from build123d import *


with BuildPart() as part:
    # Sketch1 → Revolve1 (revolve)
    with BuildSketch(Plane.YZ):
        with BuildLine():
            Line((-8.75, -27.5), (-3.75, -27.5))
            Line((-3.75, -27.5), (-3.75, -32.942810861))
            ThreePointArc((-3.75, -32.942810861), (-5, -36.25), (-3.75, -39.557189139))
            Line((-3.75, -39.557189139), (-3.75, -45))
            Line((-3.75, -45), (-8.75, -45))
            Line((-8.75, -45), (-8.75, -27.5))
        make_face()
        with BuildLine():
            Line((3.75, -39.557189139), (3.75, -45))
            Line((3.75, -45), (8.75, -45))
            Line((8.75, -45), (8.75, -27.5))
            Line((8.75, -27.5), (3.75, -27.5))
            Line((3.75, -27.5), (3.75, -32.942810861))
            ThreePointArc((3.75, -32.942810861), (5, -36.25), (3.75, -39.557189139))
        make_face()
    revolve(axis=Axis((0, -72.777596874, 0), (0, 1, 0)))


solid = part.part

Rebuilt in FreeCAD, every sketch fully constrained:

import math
import FreeCAD as App
import Part
import Sketcher

V = App.Vector
Q = App.Units.Quantity

doc = App.newDocument("Part")
body = doc.addObject("PartDesign::Body", "Body")
body.AllowCompound = True

sketch1 = body.newObject("Sketcher::SketchObject", "Sketch")
sketch1.AttachmentSupport = (doc.getObject("YZ_Plane"), [""])
sketch1.MapMode = "FlatFace"
sketch1.addGeometry(Part.LineSegment(V(-4, -28, 0), V(-9, -28, 0)), False)
sketch1.addGeometry(Part.LineSegment(V(-9, -28, 0), V(-9, -45, 0)), False)
sketch1.addGeometry(Part.LineSegment(V(-9, -45, 0), V(-4, -45, 0)), False)
sketch1.addGeometry(Part.LineSegment(V(-4, -45, 0), V(-4, -40, 0)), False)
sketch1.addGeometry(Part.ArcOfCircle(Part.Circle(V(0, -36, 0), V(0, 0, 1), 5), math.radians(139), math.radians(221)), False)
sketch1.addGeometry(Part.LineSegment(V(-4, -33, 0), V(-4, -28, 0)), False)
sketch1.addGeometry(Part.LineSegment(V(4, -40, 0), V(4, -45, 0)), False)
sketch1.addGeometry(Part.LineSegment(V(4, -45, 0), V(9, -45, 0)), False)
sketch1.addGeometry(Part.LineSegment(V(9, -45, 0), V(9, -28, 0)), False)
sketch1.addGeometry(Part.LineSegment(V(9, -28, 0), V(4, -28, 0)), False)
sketch1.addGeometry(Part.LineSegment(V(4, -28, 0), V(4, -33, 0)), False)
sketch1.addGeometry(Part.ArcOfCircle(Part.Circle(V(0, -36, 0), V(0, 0, 1), 5), math.radians(-41), math.radians(41)), False)
sketch1.addConstraint(Sketcher.Constraint("Coincident", 0, 2, 1, 1))
sketch1.addConstraint(Sketcher.Constraint("Coincident", 1, 2, 2, 1))
sketch1.addConstraint(Sketcher.Constraint("Coincident", 2, 2, 3, 1))
sketch1.addConstraint(Sketcher.Constraint("Coincident", 3, 2, 4, 2))
sketch1.addConstraint(Sketcher.Constraint("Coincident", 4, 1, 5, 1))
sketch1.addConstraint(Sketcher.Constraint("Coincident", 5, 2, 0, 1))
sketch1.addConstraint(Sketcher.Constraint("Coincident", 6, 2, 7, 1))
sketch1.addConstraint(Sketcher.Constraint("Coincident", 7, 2, 8, 1))
sketch1.addConstraint(Sketcher.Constraint("Coincident", 8, 2, 9, 1))
sketch1.addConstraint(Sketcher.Constraint("Coincident", 9, 2, 10, 1))
sketch1.addConstraint(Sketcher.Constraint("Coincident", 10, 2, 11, 2))
sketch1.addConstraint(Sketcher.Constraint("Coincident", 11, 1, 6, 1))
sketch1.addConstraint(Sketcher.Constraint("Horizontal", 0))
sketch1.addConstraint(Sketcher.Constraint("Vertical", 1))
sketch1.addConstraint(Sketcher.Constraint("Horizontal", 2))
sketch1.addConstraint(Sketcher.Constraint("Vertical", 3))
sketch1.addConstraint(Sketcher.Constraint("Vertical", 5))
sketch1.addConstraint(Sketcher.Constraint("Vertical", 6))
sketch1.addConstraint(Sketcher.Constraint("Horizontal", 7))
sketch1.addConstraint(Sketcher.Constraint("Vertical", 8))
sketch1.addConstraint(Sketcher.Constraint("Horizontal", 9))
sketch1.addConstraint(Sketcher.Constraint("Vertical", 10))
sketch1.addConstraint(Sketcher.Constraint("Coincident", 11, 3, 4, 3))
sketch1.addConstraint(Sketcher.Constraint("Equal", 4, 11))
sketch1.addConstraint(Sketcher.Constraint("Symmetric", 2, 2, 6, 2, -2))
sketch1.addConstraint(Sketcher.Constraint("Symmetric", 0, 2, 8, 2, -2))
sketch1.addConstraint(Sketcher.Constraint("Symmetric", 4, 1, 10, 2, -2))
sketch1.addConstraint(Sketcher.Constraint("Vertical", 3, 2, 4, 1))
sketch1.addConstraint(Sketcher.Constraint("Equal", 3, 5))
sketch1.addConstraint(Sketcher.Constraint("Radius", 4, Q("5 mm")))
sketch1.addConstraint(Sketcher.Constraint("DistanceX", 0, 2, 0, 1, Q("5 mm")))
sketch1.addConstraint(Sketcher.Constraint("DistanceY", 1, 2, 1, 1, Q("17.5 mm")))
sketch1.addConstraint(Sketcher.Constraint("DistanceY", 1, 2, -1, 1, Q("45 mm")))
sketch1.addConstraint(Sketcher.Constraint("DistanceX", 2, 2, 6, 2, Q("7.5 mm")))
revolution = body.newObject("PartDesign::Revolution", "Revolution")
revolution.Profile = sketch1
revolution.ReferenceAxis = (sketch1, ["H_Axis"])
revolution.Angle = 360

doc.recompute()
